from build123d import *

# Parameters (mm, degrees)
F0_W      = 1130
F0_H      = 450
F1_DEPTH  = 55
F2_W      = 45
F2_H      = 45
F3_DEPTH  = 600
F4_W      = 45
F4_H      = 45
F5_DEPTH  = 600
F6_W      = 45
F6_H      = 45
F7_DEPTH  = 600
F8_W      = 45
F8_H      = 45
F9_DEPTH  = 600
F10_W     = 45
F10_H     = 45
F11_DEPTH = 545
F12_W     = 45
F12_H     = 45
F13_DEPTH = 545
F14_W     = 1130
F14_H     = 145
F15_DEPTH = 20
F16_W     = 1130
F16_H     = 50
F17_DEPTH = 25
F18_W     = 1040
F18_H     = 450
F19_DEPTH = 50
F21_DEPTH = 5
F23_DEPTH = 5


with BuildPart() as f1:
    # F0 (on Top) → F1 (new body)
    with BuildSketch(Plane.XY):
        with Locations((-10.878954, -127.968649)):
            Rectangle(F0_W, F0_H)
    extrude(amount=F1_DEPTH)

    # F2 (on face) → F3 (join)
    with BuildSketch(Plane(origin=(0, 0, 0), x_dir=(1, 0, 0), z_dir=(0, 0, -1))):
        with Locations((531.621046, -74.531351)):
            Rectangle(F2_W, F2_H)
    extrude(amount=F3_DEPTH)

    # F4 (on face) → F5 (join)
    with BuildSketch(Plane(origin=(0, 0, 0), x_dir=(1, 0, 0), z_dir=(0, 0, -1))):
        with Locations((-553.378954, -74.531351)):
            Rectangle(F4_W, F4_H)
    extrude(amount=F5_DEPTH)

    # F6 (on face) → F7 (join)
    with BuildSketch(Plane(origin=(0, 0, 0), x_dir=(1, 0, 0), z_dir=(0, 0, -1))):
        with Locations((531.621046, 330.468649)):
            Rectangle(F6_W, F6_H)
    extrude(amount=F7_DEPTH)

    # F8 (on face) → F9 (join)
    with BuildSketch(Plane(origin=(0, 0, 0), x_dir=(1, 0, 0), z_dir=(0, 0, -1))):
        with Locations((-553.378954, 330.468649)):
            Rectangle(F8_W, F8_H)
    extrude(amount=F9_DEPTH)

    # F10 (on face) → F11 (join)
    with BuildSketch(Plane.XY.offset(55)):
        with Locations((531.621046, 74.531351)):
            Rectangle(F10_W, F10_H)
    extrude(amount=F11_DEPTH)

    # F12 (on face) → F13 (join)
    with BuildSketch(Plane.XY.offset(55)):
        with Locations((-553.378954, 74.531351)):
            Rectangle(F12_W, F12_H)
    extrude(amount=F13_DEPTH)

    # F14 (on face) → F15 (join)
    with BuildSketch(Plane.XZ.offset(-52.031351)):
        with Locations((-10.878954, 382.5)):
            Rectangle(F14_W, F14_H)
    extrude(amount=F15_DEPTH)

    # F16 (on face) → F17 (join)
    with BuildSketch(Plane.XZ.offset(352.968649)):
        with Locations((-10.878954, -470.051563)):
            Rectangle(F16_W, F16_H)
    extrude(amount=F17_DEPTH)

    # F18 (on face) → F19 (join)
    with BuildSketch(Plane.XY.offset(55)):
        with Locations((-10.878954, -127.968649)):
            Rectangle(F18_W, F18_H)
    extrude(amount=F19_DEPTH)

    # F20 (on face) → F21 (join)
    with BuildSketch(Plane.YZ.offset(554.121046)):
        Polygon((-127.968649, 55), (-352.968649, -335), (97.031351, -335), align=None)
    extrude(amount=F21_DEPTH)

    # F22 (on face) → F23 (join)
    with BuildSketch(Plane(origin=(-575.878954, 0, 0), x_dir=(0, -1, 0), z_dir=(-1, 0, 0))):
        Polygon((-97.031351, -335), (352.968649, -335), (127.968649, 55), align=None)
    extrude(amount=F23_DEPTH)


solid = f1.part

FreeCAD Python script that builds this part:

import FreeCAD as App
import Part
import Sketcher
Q = App.Units.Quantity

doc = App.newDocument("Part")
body = doc.addObject("PartDesign::Body", "Body")

sketch1 = body.newObject("Sketcher::SketchObject", "Sketch")
sketch1.AttachmentSupport = (doc.getObject("XY_Plane"), [""])
sketch1.MapMode = "FlatFace"
sketch1.addGeometry(Part.LineSegment(App.Vector(-576, 97, 0), App.Vector(-576, -353, 0)), False)
sketch1.addGeometry(Part.LineSegment(App.Vector(-576, -353, 0), App.Vector(554, -353, 0)), False)
sketch1.addGeometry(Part.LineSegment(App.Vector(554, -353, 0), App.Vector(554, 97, 0)), False)
sketch1.addGeometry(Part.LineSegment(App.Vector(554, 97, 0), App.Vector(-576, 97, 0)), False)
sketch1.addConstraint(Sketcher.Constraint("Coincident", 0, 2, 1, 1))
sketch1.addConstraint(Sketcher.Constraint("Coincident", 1, 2, 2, 1))
sketch1.addConstraint(Sketcher.Constraint("Coincident", 2, 2, 3, 1))
sketch1.addConstraint(Sketcher.Constraint("Coincident", 3, 2, 0, 1))
sketch1.addConstraint(Sketcher.Constraint("Vertical", 0))
sketch1.addConstraint(Sketcher.Constraint("Horizontal", 1))
sketch1.addConstraint(Sketcher.Constraint("Vertical", 2))
sketch1.addConstraint(Sketcher.Constraint("Horizontal", 3))
sketch1.addConstraint(Sketcher.Constraint("DistanceX", 1, 1, 1, 2, Q("1130 mm")))
sketch1.addConstraint(Sketcher.Constraint("DistanceY", 0, 2, 0, 1, Q("450 mm")))
sketch1.addConstraint(Sketcher.Constraint("DistanceY", 0, 2, -1, 1, Q("352.968649 mm")))
sketch1.addConstraint(Sketcher.Constraint("DistanceX", 0, 2, -1, 1, Q("575.878954 mm")))
pad1 = body.newObject("PartDesign::Pad", "Pad")
pad1.Profile = sketch1
pad1.Length = 55

sketch2 = body.newObject("Sketcher::SketchObject", "Sketch001")
sketch2.AttachmentSupport = (doc.getObject("XY_Plane"), [""])
sketch2.MapMode = "FlatFace"
sketch2.addGeometry(Part.LineSegment(App.Vector(509, 52, 0), App.Vector(509, 97, 0)), False)
sketch2.addGeometry(Part.LineSegment(App.Vector(509, 97, 0), App.Vector(554, 97, 0)), False)
sketch2.addGeometry(Part.LineSegment(App.Vector(554, 97, 0), App.Vector(554, 52, 0)), False)
sketch2.addGeometry(Part.LineSegment(App.Vector(554, 52, 0), App.Vector(509, 52, 0)), False)
sketch2.addConstraint(Sketcher.Constraint("Coincident", 0, 2, 1, 1))
sketch2.addConstraint(Sketcher.Constraint("Coincident", 1, 2, 2, 1))
sketch2.addConstraint(Sketcher.Constraint("Coincident", 2, 2, 3, 1))
sketch2.addConstraint(Sketcher.Constraint("Coincident", 3, 2, 0, 1))
sketch2.addConstraint(Sketcher.Constraint("Vertical", 0))
sketch2.addConstraint(Sketcher.Constraint("Horizontal", 1))
sketch2.addConstraint(Sketcher.Constraint("Vertical", 2))
sketch2.addConstraint(Sketcher.Constraint("Horizontal", 3))
sketch2.addConstraint(Sketcher.Constraint("Equal", 3, 0))
sketch2.addConstraint(Sketcher.Constraint("DistanceX", 1, 1, 1, 2, Q("45 mm")))
sketch2.addConstraint(Sketcher.Constraint("DistanceY", -1, 1, 0, 2, Q("97.031351 mm")))
sketch2.addConstraint(Sketcher.Constraint("DistanceX", -1, 1, 0, 2, Q("509.121046 mm")))
pad2 = body.newObject("PartDesign::Pad", "Pad001")
pad2.Profile = sketch2
pad2.Length = 600
pad2.Reversed = True

sketch3 = body.newObject("Sketcher::SketchObject", "Sketch002")
sketch3.AttachmentSupport = (doc.getObject("XY_Plane"), [""])
sketch3.MapMode = "FlatFace"
sketch3.addGeometry(Part.LineSegment(App.Vector(-576, 52, 0), App.Vector(-576, 97, 0)), False)
sketch3.addGeometry(Part.LineSegment(App.Vector(-576, 97, 0), App.Vector(-531, 97, 0)), False)
sketch3.addGeometry(Part.LineSegment(App.Vector(-531, 97, 0), App.Vector(-531, 52, 0)), False)
sketch3.addGeometry(Part.LineSegment(App.Vector(-531, 52, 0), App.Vector(-576, 52, 0)), False)
sketch3.addConstraint(Sketcher.Constraint("Coincident", 0, 2, 1, 1))
sketch3.addConstraint(Sketcher.Constraint("Coincident", 1, 2, 2, 1))
sketch3.addConstraint(Sketcher.Constraint("Coincident", 2, 2, 3, 1))
sketch3.addConstraint(Sketcher.Constraint("Coincident", 3, 2, 0, 1))
sketch3.addConstraint(Sketcher.Constraint("Vertical", 0))
sketch3.addConstraint(Sketcher.Constraint("Horizontal", 1))
sketch3.addConstraint(Sketcher.Constraint("Vertical", 2))
sketch3.addConstraint(Sketcher.Constraint("Horizontal", 3))
sketch3.addConstraint(Sketcher.Constraint("Equal", 3, 0))
sketch3.addConstraint(Sketcher.Constraint("DistanceX", 1, 1, 1, 2, Q("45 mm")))
sketch3.addConstraint(Sketcher.Constraint("DistanceY", -1, 1, 0, 2, Q("97.031351 mm")))
sketch3.addConstraint(Sketcher.Constraint("DistanceX", 0, 2, -1, 1, Q("575.878954 mm")))
pad3 = body.newObject("PartDesign::Pad", "Pad002")
pad3.Profile = sketch3
pad3.Length = 600
pad3.Reversed = True

sketch4 = body.newObject("Sketcher::SketchObject", "Sketch003")
sketch4.AttachmentSupport = (doc.getObject("XY_Plane"), [""])
sketch4.MapMode = "FlatFace"
sketch4.addGeometry(Part.LineSegment(App.Vector(509, -353, 0), App.Vector(509, -308, 0)), False)
sketch4.addGeometry(Part.LineSegment(App.Vector(509, -308, 0), App.Vector(554, -308, 0)), False)
sketch4.addGeometry(Part.LineSegment(App.Vector(554, -308, 0), App.Vector(554, -353, 0)), False)
sketch4.addGeometry(Part.LineSegment(App.Vector(554, -353, 0), App.Vector(509, -353, 0)), False)
sketch4.addConstraint(Sketcher.Constraint("Coincident", 0, 2, 1, 1))
sketch4.addConstraint(Sketcher.Constraint("Coincident", 1, 2, 2, 1))
sketch4.addConstraint(Sketcher.Constraint("Coincident", 2, 2, 3, 1))
sketch4.addConstraint(Sketcher.Constraint("Coincident", 3, 2, 0, 1))
sketch4.addConstraint(Sketcher.Constraint("Vertical", 0))
sketch4.addConstraint(Sketcher.Constraint("Horizontal", 1))
sketch4.addConstraint(Sketcher.Constraint("Vertical", 2))
sketch4.addConstraint(Sketcher.Constraint("Horizontal", 3))
sketch4.addConstraint(Sketcher.Constraint("Equal", 3, 0))
sketch4.addConstraint(Sketcher.Constraint("DistanceX", 1, 1, 1, 2, Q("45 mm")))
sketch4.addConstraint(Sketcher.Constraint("DistanceY", 0, 2, -1, 1, Q("307.968649 mm")))
sketch4.addConstraint(Sketcher.Constraint("DistanceX", -1, 1, 0, 2, Q("509.121046 mm")))
pad4 = body.newObject("PartDesign::Pad", "Pad003")
pad4.Profile = sketch4
pad4.Length = 600
pad4.Reversed = True

sketch5 = body.newObject("Sketcher::SketchObject", "Sketch004")
sketch5.AttachmentSupport = (doc.getObject("XY_Plane"), [""])
sketch5.MapMode = "FlatFace"
sketch5.addGeometry(Part.LineSegment(App.Vector(-576, -353, 0), App.Vector(-576, -308, 0)), False)
sketch5.addGeometry(Part.LineSegment(App.Vector(-576, -308, 0), App.Vector(-531, -308, 0)), False)
sketch5.addGeometry(Part.LineSegment(App.Vector(-531, -308, 0), App.Vector(-531, -353, 0)), False)
sketch5.addGeometry(Part.LineSegment(App.Vector(-531, -353, 0), App.Vector(-576, -353, 0)), False)
sketch5.addConstraint(Sketcher.Constraint("Coincident", 0, 2, 1, 1))
sketch5.addConstraint(Sketcher.Constraint("Coincident", 1, 2, 2, 1))
sketch5.addConstraint(Sketcher.Constraint("Coincident", 2, 2, 3, 1))
sketch5.addConstraint(Sketcher.Constraint("Coincident", 3, 2, 0, 1))
sketch5.addConstraint(Sketcher.Constraint("Vertical", 0))
sketch5.addConstraint(Sketcher.Constraint("Horizontal", 1))
sketch5.addConstraint(Sketcher.Constraint("Vertical", 2))
sketch5.addConstraint(Sketcher.Constraint("Horizontal", 3))
sketch5.addConstraint(Sketcher.Constraint("Equal", 3, 0))
sketch5.addConstraint(Sketcher.Constraint("DistanceX", 1, 1, 1, 2, Q("45 mm")))
sketch5.addConstraint(Sketcher.Constraint("DistanceY", 0, 2, -1, 1, Q("307.968649 mm")))
sketch5.addConstraint(Sketcher.Constraint("DistanceX", 0, 2, -1, 1, Q("575.878954 mm")))
pad5 = body.newObject("PartDesign::Pad", "Pad004")
pad5.Profile = sketch5
pad5.Length = 600
pad5.Reversed = True

sketch6 = body.newObject("Sketcher::SketchObject", "Sketch005")
sketch6.AttachmentSupport = (doc.getObject("XY_Plane"), [""])
sketch6.MapMode = "FlatFace"
sketch6.AttachmentOffset = App.Placement(App.Vector(0, 0, 55), App.Rotation())
sketch6.addGeometry(Part.LineSegment(App.Vector(509, 97, 0), App.Vector(509, 52, 0)), False)
sketch6.addGeometry(Part.LineSegment(App.Vector(509, 52, 0), App.Vector(554, 52, 0)), False)
sketch6.addGeometry(Part.LineSegment(App.Vector(554, 52, 0), App.Vector(554, 97, 0)), False)
sketch6.addGeometry(Part.LineSegment(App.Vector(554, 97, 0), App.Vector(509, 97, 0)), False)
sketch6.addConstraint(Sketcher.Constraint("Coincident", 0, 2, 1, 1))
sketch6.addConstraint(Sketcher.Constraint("Coincident", 1, 2, 2, 1))
sketch6.addConstraint(Sketcher.Constraint("Coincident", 2, 2, 3, 1))
sketch6.addConstraint(Sketcher.Constraint("Coincident", 3, 2, 0, 1))
sketch6.addConstraint(Sketcher.Constraint("Vertical", 0))
sketch6.addConstraint(Sketcher.Constraint("Horizontal", 1))
sketch6.addConstraint(Sketcher.Constraint("Vertical", 2))
sketch6.addConstraint(Sketcher.Constraint("Horizontal", 3))
sketch6.addConstraint(Sketcher.Constraint("Equal", 3, 0))
sketch6.addConstraint(Sketcher.Constraint("DistanceX", 1, 1, 1, 2, Q("45 mm")))
sketch6.addConstraint(Sketcher.Constraint("DistanceY", -1, 1, 0, 2, Q("52.031351 mm")))
sketch6.addConstraint(Sketcher.Constraint("DistanceX", -1, 1, 0, 2, Q("509.121046 mm")))
pad6 = body.newObject("PartDesign::Pad", "Pad005")
pad6.Profile = sketch6
pad6.Length = 545

sketch7 = body.newObject("Sketcher::SketchObject", "Sketch006")
sketch7.AttachmentSupport = (doc.getObject("XY_Plane"), [""])
sketch7.MapMode = "FlatFace"
sketch7.AttachmentOffset = App.Placement(App.Vector(0, 0, 55), App.Rotation())
sketch7.addGeometry(Part.LineSegment(App.Vector(-576, 97, 0), App.Vector(-576, 52, 0)), False)
sketch7.addGeometry(Part.LineSegment(App.Vector(-576, 52, 0), App.Vector(-531, 52, 0)), False)
sketch7.addGeometry(Part.LineSegment(App.Vector(-531, 52, 0), App.Vector(-531, 97, 0)), False)
sketch7.addGeometry(Part.LineSegment(App.Vector(-531, 97, 0), App.Vector(-576, 97, 0)), False)
sketch7.addConstraint(Sketcher.Constraint("Coincident", 0, 2, 1, 1))
sketch7.addConstraint(Sketcher.Constraint("Coincident", 1, 2, 2, 1))
sketch7.addConstraint(Sketcher.Constraint("Coincident", 2, 2, 3, 1))
sketch7.addConstraint(Sketcher.Constraint("Coincident", 3, 2, 0, 1))
sketch7.addConstraint(Sketcher.Constraint("Vertical", 0))
sketch7.addConstraint(Sketcher.Constraint("Horizontal", 1))
sketch7.addConstraint(Sketcher.Constraint("Vertical", 2))
sketch7.addConstraint(Sketcher.Constraint("Horizontal", 3))
sketch7.addConstraint(Sketcher.Constraint("Equal", 3, 0))
sketch7.addConstraint(Sketcher.Constraint("DistanceX", 1, 1, 1, 2, Q("45 mm")))
sketch7.addConstraint(Sketcher.Constraint("DistanceY", -1, 1, 0, 2, Q("52.031351 mm")))
sketch7.addConstraint(Sketcher.Constraint("DistanceX", 0, 2, -1, 1, Q("575.878954 mm")))
pad7 = body.newObject("PartDesign::Pad", "Pad006")
pad7.Profile = sketch7
pad7.Length = 545

sketch8 = body.newObject("Sketcher::SketchObject", "Sketch007")
sketch8.AttachmentSupport = (doc.getObject("XZ_Plane"), [""])
sketch8.MapMode = "FlatFace"
sketch8.AttachmentOffset = App.Placement(App.Vector(0, 0, -52.031351), App.Rotation())
sketch8.addGeometry(Part.LineSegment(App.Vector(-576, 455, 0), App.Vector(-576, 310, 0)), False)
sketch8.addGeometry(Part.LineSegment(App.Vector(-576, 310, 0), App.Vector(554, 310, 0)), False)
sketch8.addGeometry(Part.LineSegment(App.Vector(554, 310, 0), App.Vector(554, 455, 0)), False)
sketch8.addGeometry(Part.LineSegment(App.Vector(554, 455, 0), App.Vector(-576, 455, 0)), False)
sketch8.addConstraint(Sketcher.Constraint("Coincident", 0, 2, 1, 1))
sketch8.addConstraint(Sketcher.Constraint("Coincident", 1, 2, 2, 1))
sketch8.addConstraint(Sketcher.Constraint("Coincident", 2, 2, 3, 1))
sketch8.addConstraint(Sketcher.Constraint("Coincident", 3, 2, 0, 1))
sketch8.addConstraint(Sketcher.Constraint("Vertical", 0))
sketch8.addConstraint(Sketcher.Constraint("Horizontal", 1))
sketch8.addConstraint(Sketcher.Constraint("Vertical", 2))
sketch8.addConstraint(Sketcher.Constraint("Horizontal", 3))
sketch8.addConstraint(Sketcher.Constraint("DistanceX", 1, 1, 1, 2, Q("1130 mm")))
sketch8.addConstraint(Sketcher.Constraint("DistanceY", 0, 2, 0, 1, Q("145 mm")))
sketch8.addConstraint(Sketcher.Constraint("DistanceY", -1, 1, 0, 2, Q("310 mm")))
sketch8.addConstraint(Sketcher.Constraint("DistanceX", 0, 2, -1, 1, Q("575.878954 mm")))
pad8 = body.newObject("PartDesign::Pad", "Pad007")
pad8.Profile = sketch8
pad8.Length = 20

sketch9 = body.newObject("Sketcher::SketchObject", "Sketch008")
sketch9.AttachmentSupport = (doc.getObject("XZ_Plane"), [""])
sketch9.MapMode = "FlatFace"
sketch9.AttachmentOffset = App.Placement(App.Vector(0, 0, 352.968649), App.Rotation())
sketch9.addGeometry(Part.LineSegment(App.Vector(-576, -445, 0), App.Vector(-576, -495, 0)), False)
sketch9.addGeometry(Part.LineSegment(App.Vector(-576, -495, 0), App.Vector(554, -495, 0)), False)
sketch9.addGeometry(Part.LineSegment(App.Vector(554, -495, 0), App.Vector(554, -445, 0)), False)
sketch9.addGeometry(Part.LineSegment(App.Vector(554, -445, 0), App.Vector(-576, -445, 0)), False)
sketch9.addConstraint(Sketcher.Constraint("Coincident", 0, 2, 1, 1))
sketch9.addConstraint(Sketcher.Constraint("Coincident", 1, 2, 2, 1))
sketch9.addConstraint(Sketcher.Constraint("Coincident", 2, 2, 3, 1))
sketch9.addConstraint(Sketcher.Constraint("Coincident", 3, 2, 0, 1))
sketch9.addConstraint(Sketcher.Constraint("Vertical", 0))
sketch9.addConstraint(Sketcher.Constraint("Horizontal", 1))
sketch9.addConstraint(Sketcher.Constraint("Vertical", 2))
sketch9.addConstraint(Sketcher.Constraint("Horizontal", 3))
sketch9.addConstraint(Sketcher.Constraint("DistanceX", 1, 1, 1, 2, Q("1130 mm")))
sketch9.addConstraint(Sketcher.Constraint("DistanceY", 0, 2, 0, 1, Q("50 mm")))
sketch9.addConstraint(Sketcher.Constraint("DistanceX", 0, 2, -1, 1, Q("575.878954 mm")))
sketch9.addConstraint(Sketcher.Constraint("DistanceY", 0, 2, -1, 1, Q("495.051563 mm")))
pad9 = body.newObject("PartDesign::Pad", "Pad008")
pad9.Profile = sketch9
pad9.Length = 25

sketch10 = body.newObject("Sketcher::SketchObject", "Sketch009")
sketch10.AttachmentSupport = (doc.getObject("XY_Plane"), [""])
sketch10.MapMode = "FlatFace"
sketch10.AttachmentOffset = App.Placement(App.Vector(0, 0, 55), App.Rotation())
sketch10.addGeometry(Part.LineSegment(App.Vector(-531, 97, 0), App.Vector(-531, -353, 0)), False)
sketch10.addGeometry(Part.LineSegment(App.Vector(-531, -353, 0), App.Vector(509, -353, 0)), False)
sketch10.addGeometry(Part.LineSegment(App.Vector(509, -353, 0), App.Vector(509, 97, 0)), False)
sketch10.addGeometry(Part.LineSegment(App.Vector(509, 97, 0), App.Vector(-531, 97, 0)), False)
sketch10.addConstraint(Sketcher.Constraint("Coincident", 0, 2, 1, 1))
sketch10.addConstraint(Sketcher.Constraint("Coincident", 1, 2, 2, 1))
sketch10.addConstraint(Sketcher.Constraint("Coincident", 2, 2, 3, 1))
sketch10.addConstraint(Sketcher.Constraint("Coincident", 3, 2, 0, 1))
sketch10.addConstraint(Sketcher.Constraint("Vertical", 0))
sketch10.addConstraint(Sketcher.Constraint("Horizontal", 1))
sketch10.addConstraint(Sketcher.Constraint("Vertical", 2))
sketch10.addConstraint(Sketcher.Constraint("Horizontal", 3))
sketch10.addConstraint(Sketcher.Constraint("DistanceX", 1, 1, 1, 2, Q("1040 mm")))
sketch10.addConstraint(Sketcher.Constraint("DistanceY", 0, 2, 0, 1, Q("450 mm")))
sketch10.addConstraint(Sketcher.Constraint("DistanceY", 0, 2, -1, 1, Q("352.968649 mm")))
sketch10.addConstraint(Sketcher.Constraint("DistanceX", 0, 2, -1, 1, Q("530.878954 mm")))
pad10 = body.newObject("PartDesign::Pad", "Pad009")
pad10.Profile = sketch10
pad10.Length = 50

sketch11 = body.newObject("Sketcher::SketchObject", "Sketch010")
sketch11.AttachmentSupport = (doc.getObject("YZ_Plane"), [""])
sketch11.MapMode = "FlatFace"
sketch11.AttachmentOffset = App.Placement(App.Vector(0, 0, 554.121046), App.Rotation())
sketch11.addGeometry(Part.LineSegment(App.Vector(-128, 55, 0), App.Vector(-353, -335, 0)), False)
sketch11.addGeometry(Part.LineSegment(App.Vector(-353, -335, 0), App.Vector(97, -335, 0)), False)
sketch11.addGeometry(Part.LineSegment(App.Vector(97, -335, 0), App.Vector(-128, 55, 0)), False)
sketch11.addConstraint(Sketcher.Constraint("Coincident", 0, 2, 1, 1))
sketch11.addConstraint(Sketcher.Constraint("Coincident", 1, 2, 2, 1))
sketch11.addConstraint(Sketcher.Constraint("Coincident", 2, 2, 0, 1))
sketch11.addConstraint(Sketcher.Constraint("Horizontal", 1))
sketch11.addConstraint(Sketcher.Constraint("Equal", 0, 2))
sketch11.addConstraint(Sketcher.Constraint("DistanceX", 1, 1, 1, 2, Q("450 mm")))
sketch11.addConstraint(Sketcher.Constraint("DistanceY", 0, 2, -1, 1, Q("335 mm")))
sketch11.addConstraint(Sketcher.Constraint("DistanceY", -1, 1, 2, 2, Q("55 mm")))
sketch11.addConstraint(Sketcher.Constraint("DistanceX", 0, 2, -1, 1, Q("352.968649 mm")))
pad11 = body.newObject("PartDesign::Pad", "Pad010")
pad11.Profile = sketch11
pad11.Length = 5

sketch12 = body.newObject("Sketcher::SketchObject", "Sketch011")
sketch12.AttachmentSupport = (doc.getObject("YZ_Plane"), [""])
sketch12.MapMode = "FlatFace"
sketch12.AttachmentOffset = App.Placement(App.Vector(0, 0, -575.878954), App.Rotation())
sketch12.addGeometry(Part.LineSegment(App.Vector(97, -335, 0), App.Vector(-353, -335, 0)), False)
sketch12.addGeometry(Part.LineSegment(App.Vector(-353, -335, 0), App.Vector(-128, 55, 0)), False)
sketch12.addGeometry(Part.LineSegment(App.Vector(-128, 55, 0), App.Vector(97, -335, 0)), False)
sketch12.addConstraint(Sketcher.Constraint("Coincident", 0, 2, 1, 1))
sketch12.addConstraint(Sketcher.Constraint("Coincident", 1, 2, 2, 1))
sketch12.addConstraint(Sketcher.Constraint("Coincident", 2, 2, 0, 1))
sketch12.addConstraint(Sketcher.Constraint("Horizontal", 0))
sketch12.addConstraint(Sketcher.Constraint("Equal", 1, 2))
sketch12.addConstraint(Sketcher.Constraint("DistanceX", 0, 2, 0, 1, Q("450 mm")))
sketch12.addConstraint(Sketcher.Constraint("DistanceY", 0, 2, -1, 1, Q("335 mm")))
sketch12.addConstraint(Sketcher.Constraint("DistanceY", -1, 1, 1, 2, Q("55 mm")))
sketch12.addConstraint(Sketcher.Constraint("DistanceX", 0, 2, -1, 1, Q("352.968649 mm")))
pad12 = body.newObject("PartDesign::Pad", "Pad011")
pad12.Profile = sketch12
pad12.Length = 5
pad12.Reversed = True

doc.recompute()
